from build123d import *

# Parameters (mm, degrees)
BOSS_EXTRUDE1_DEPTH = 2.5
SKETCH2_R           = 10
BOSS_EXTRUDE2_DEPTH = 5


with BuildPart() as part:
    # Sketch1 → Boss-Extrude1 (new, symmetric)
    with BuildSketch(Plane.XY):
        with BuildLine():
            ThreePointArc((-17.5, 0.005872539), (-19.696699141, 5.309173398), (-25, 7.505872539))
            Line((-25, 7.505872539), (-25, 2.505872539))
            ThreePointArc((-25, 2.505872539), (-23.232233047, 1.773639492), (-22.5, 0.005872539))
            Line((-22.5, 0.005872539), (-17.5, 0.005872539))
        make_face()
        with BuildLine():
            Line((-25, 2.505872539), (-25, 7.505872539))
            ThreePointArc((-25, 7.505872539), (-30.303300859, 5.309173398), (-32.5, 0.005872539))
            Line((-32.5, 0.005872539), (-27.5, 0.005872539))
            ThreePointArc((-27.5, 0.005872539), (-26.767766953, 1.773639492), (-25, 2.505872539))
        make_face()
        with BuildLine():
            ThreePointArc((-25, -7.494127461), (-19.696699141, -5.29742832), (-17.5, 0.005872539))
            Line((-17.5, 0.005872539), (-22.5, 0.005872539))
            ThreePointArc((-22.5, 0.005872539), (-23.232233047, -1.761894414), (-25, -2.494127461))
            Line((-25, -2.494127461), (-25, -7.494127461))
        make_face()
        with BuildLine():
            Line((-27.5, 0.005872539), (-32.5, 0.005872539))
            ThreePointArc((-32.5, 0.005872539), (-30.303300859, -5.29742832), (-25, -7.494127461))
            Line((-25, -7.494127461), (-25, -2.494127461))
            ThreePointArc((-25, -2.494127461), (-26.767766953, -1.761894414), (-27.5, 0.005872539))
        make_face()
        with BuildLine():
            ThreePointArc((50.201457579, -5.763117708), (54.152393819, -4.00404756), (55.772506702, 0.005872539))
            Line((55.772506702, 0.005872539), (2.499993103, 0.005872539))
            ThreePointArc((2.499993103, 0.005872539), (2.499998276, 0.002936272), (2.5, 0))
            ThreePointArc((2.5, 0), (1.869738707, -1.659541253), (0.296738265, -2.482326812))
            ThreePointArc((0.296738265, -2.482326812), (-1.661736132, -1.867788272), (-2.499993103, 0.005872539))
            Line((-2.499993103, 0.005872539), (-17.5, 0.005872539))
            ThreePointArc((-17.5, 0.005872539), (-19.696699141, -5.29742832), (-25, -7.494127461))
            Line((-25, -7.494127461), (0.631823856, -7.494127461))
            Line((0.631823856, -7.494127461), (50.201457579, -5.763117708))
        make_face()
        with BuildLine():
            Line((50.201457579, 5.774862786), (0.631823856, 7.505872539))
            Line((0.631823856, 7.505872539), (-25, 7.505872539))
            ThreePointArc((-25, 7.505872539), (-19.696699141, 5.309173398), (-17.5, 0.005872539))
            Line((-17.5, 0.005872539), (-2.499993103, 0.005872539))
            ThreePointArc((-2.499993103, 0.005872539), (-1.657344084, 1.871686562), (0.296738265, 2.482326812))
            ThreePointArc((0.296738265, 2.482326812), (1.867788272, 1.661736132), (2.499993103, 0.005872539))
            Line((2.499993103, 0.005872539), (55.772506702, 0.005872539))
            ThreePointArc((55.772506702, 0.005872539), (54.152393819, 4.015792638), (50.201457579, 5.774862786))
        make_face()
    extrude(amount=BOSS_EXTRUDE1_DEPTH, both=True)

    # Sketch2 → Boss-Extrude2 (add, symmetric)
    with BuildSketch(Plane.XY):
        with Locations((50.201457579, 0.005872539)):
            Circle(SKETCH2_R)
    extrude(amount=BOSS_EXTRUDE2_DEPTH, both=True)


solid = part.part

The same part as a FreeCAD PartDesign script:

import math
import FreeCAD as App
import Part
import Sketcher
from FreeCAD import Vector
Q = App.Units.Quantity

doc = App.newDocument("Part")
body = doc.addObject("PartDesign::Body", "Body")

# Sketch on XY plane
sketch1 = body.newObject("Sketcher::SketchObject", "Sketch")
sketch1.AttachmentSupport = (doc.getObject("XY_Plane"), [""])
sketch1.MapMode = "FlatFace"
sketch1.addGeometry(Part.ArcOfCircle(Part.Circle(Vector(-25, 0.005873, 0), Vector(0, 0, 1), 7.5), math.radians(90), math.radians(180)), False)
sketch1.addGeometry(Part.ArcOfCircle(Part.Circle(Vector(-25, 0.005873, 0), Vector(0, 0, 1), 7.5), math.radians(180), math.radians(270)), False)
sketch1.addGeometry(Part.LineSegment(Vector(-25, -7.494127, 0), Vector(0.631824, -7.494127, 0)), False)
sketch1.addGeometry(Part.LineSegment(Vector(0.631824, -7.494127, 0), Vector(50.201458, -5.763118, 0)), False)
sketch1.addGeometry(Part.ArcOfCircle(Part.Circle(Vector(50, 0.005873, 0), Vector(0, 0, 1), 5.772507), math.radians(-88), math.radians(0)), False)
sketch1.addGeometry(Part.ArcOfCircle(Part.Circle(Vector(50, 0.005873, 0), Vector(0, 0, 1), 5.772507), math.radians(0), math.radians(88)), False)
sketch1.addGeometry(Part.LineSegment(Vector(50.201458, 5.774863, 0), Vector(0.631824, 7.505873, 0)), False)
sketch1.addGeometry(Part.LineSegment(Vector(0.631824, 7.505873, 0), Vector(-25, 7.505873, 0)), False)
sketch1.addGeometry(Part.ArcOfCircle(Part.Circle(Vector(0.000236, 0, 0), Vector(0, 0, 1), 2.499764), math.radians(-0.00001), math.radians(0.134592)), False)
sketch1.addGeometry(Part.ArcOfCircle(Part.Circle(Vector(0, 0, 0), Vector(0, 0, 1), 2.5), math.radians(-83.183189), math.radians(0)), False)
sketch1.addGeometry(Part.ArcOfCircle(Part.Circle(Vector(0, 0, 0), Vector(0, 0, 1), 2.5), math.radians(179.865411), math.radians(276.816811)), False)
sketch1.addGeometry(Part.ArcOfCircle(Part.Circle(Vector(0, 0, 0), Vector(0, 0, 1), 2.5), math.radians(83.183189), math.radians(179.865411)), False)
sketch1.addGeometry(Part.ArcOfCircle(Part.Circle(Vector(0, 0, 0), Vector(0, 0, 1), 2.5), math.radians(0.134589), math.radians(83.183189)), False)
sketch1.addGeometry(Part.ArcOfCircle(Part.Circle(Vector(-25, 0.005873, 0), Vector(0, 0, 1), 2.5), math.radians(-90), math.radians(0)), False)
sketch1.addGeometry(Part.ArcOfCircle(Part.Circle(Vector(-25, 0.005873, 0), Vector(0, 0, 1), 2.5), math.radians(180), math.radians(270)), False)
sketch1.addGeometry(Part.ArcOfCircle(Part.Circle(Vector(-25, 0.005873, 0), Vector(0, 0, 1), 2.5), math.radians(90), math.radians(180)), False)
sketch1.addGeometry(Part.ArcOfCircle(Part.Circle(Vector(-25, 0.005873, 0), Vector(0, 0, 1), 2.5), math.radians(0), math.radians(90)), False)
sketch1.addConstraint(Sketcher.Constraint("Tangent", 0, 2, 1, 1))
sketch1.addConstraint(Sketcher.Constraint("Tangent", 1, 2, 2, 1))
sketch1.addConstraint(Sketcher.Constraint("Coincident", 2, 2, 3, 1))
sketch1.addConstraint(Sketcher.Constraint("Tangent", 3, 2, 4, 1))
sketch1.addConstraint(Sketcher.Constraint("Tangent", 4, 2, 5, 1))
sketch1.addConstraint(Sketcher.Constraint("Tangent", 5, 2, 6, 1))
sketch1.addConstraint(Sketcher.Constraint("Coincident", 6, 2, 7, 1))
sketch1.addConstraint(Sketcher.Constraint("Tangent", 7, 2, 0, 1))
sketch1.addConstraint(Sketcher.Constraint("Tangent", 8, 1, 9, 2))
sketch1.addConstraint(Sketcher.Constraint("Tangent", 9, 1, 10, 2))
sketch1.addConstraint(Sketcher.Constraint("Tangent", 10, 1, 11, 2))
sketch1.addConstraint(Sketcher.Constraint("Tangent", 11, 1, 12, 2))
sketch1.addConstraint(Sketcher.Constraint("Tangent", 12, 1, 8, 2))
sketch1.addConstraint(Sketcher.Constraint("Tangent", 13, 1, 14, 2))
sketch1.addConstraint(Sketcher.Constraint("Tangent", 14, 1, 15, 2))
sketch1.addConstraint(Sketcher.Constraint("Tangent", 15, 1, 16, 2))
sketch1.addConstraint(Sketcher.Constraint("Tangent", 16, 1, 13, 2))
sketch1.addConstraint(Sketcher.Constraint("Horizontal", 2))
sketch1.addConstraint(Sketcher.Constraint("Horizontal", 7))
sketch1.addConstraint(Sketcher.Constraint("Coincident", 9, 3, -1, 1))
sketch1.addConstraint(Sketcher.Constraint("Coincident", 13, 3, 0, 3))
sketch1.addConstraint(Sketcher.Constraint("Equal", 0, 1))
sketch1.addConstraint(Sketcher.Constraint("Equal", 4, 5))
sketch1.addConstraint(Sketcher.Constraint("Equal", 9, 10))
sketch1.addConstraint(Sketcher.Constraint("Equal", 12, 13))
sketch1.addConstraint(Sketcher.Constraint("Equal", 13, 14))
sketch1.addConstraint(Sketcher.Constraint("PointOnObject", 8, 1, -1))
sketch1.addConstraint(Sketcher.Constraint("Horizontal", 1, 3, 4, 3))
sketch1.addConstraint(Sketcher.Constraint("Horizontal", 16, 3, 0, 2))
sketch1.addConstraint(Sketcher.Constraint("Horizontal", 0, 2, 4, 2))
sketch1.addConstraint(Sketcher.Constraint("Horizontal", 4, 2, 10, 1))
sketch1.addConstraint(Sketcher.Constraint("Horizontal", 10, 1, 12, 1))
sketch1.addConstraint(Sketcher.Constraint("Horizontal", 12, 1, 14, 1))
sketch1.addConstraint(Sketcher.Constraint("Horizontal", 14, 1, 16, 1))
sketch1.addConstraint(Sketcher.Constraint("Vertical", 2, 2, 6, 2))
sketch1.addConstraint(Sketcher.Constraint("Vertical", 9, 1, 11, 1))
sketch1.addConstraint(Sketcher.Constraint("Vertical", 7, 2, 13, 1))
sketch1.addConstraint(Sketcher.Constraint("Vertical", 13, 1, 15, 1))
sketch1.addConstraint(Sketcher.Constraint("Radius", 0, 7.5))
sketch1.addConstraint(Sketcher.Constraint("Radius", 9, 2.5))
sketch1.addConstraint(Sketcher.Constraint("Angle", 3, Q("2 deg")))
sketch1.addConstraint(Sketcher.Constraint("DistanceX", 0, 3, -1, 1, 25.0))
sketch1.addConstraint(Sketcher.Constraint("DistanceX", -1, 1, 4, 3, 50.0))
sketch1.addConstraint(Sketcher.Constraint("Radius", 4, 5.772507))
sketch1.addConstraint(Sketcher.Constraint("Radius", 8, 2.499764))
sketch1.addConstraint(Sketcher.Constraint("DistanceX", 8, 3, 9, 1, 0.296502))
sketch1.addConstraint(Sketcher.Constraint("DistanceY", 3, 2, 8, 3, 5.763118))
pad1 = body.newObject("PartDesign::Pad", "Pad")
pad1.Profile = sketch1
pad1.Length = 5
pad1.Midplane = True

# Sketch on XY plane
sketch2 = body.newObject("Sketcher::SketchObject", "Sketch001")
sketch2.AttachmentSupport = (doc.getObject("XY_Plane"), [""])
sketch2.MapMode = "FlatFace"
sketch2.addGeometry(Part.Circle(Vector(50.201458, 0.005873, 0), Vector(0, 0, 1), 10), False)
sketch2.addConstraint(Sketcher.Constraint("Diameter", 0, 20.0))
sketch2.addConstraint(Sketcher.Constraint("DistanceX", -1, 1, 0, 3, 50.201458))
sketch2.addConstraint(Sketcher.Constraint("DistanceY", -1, 1, 0, 3, 0.005873))
pad2 = body.newObject("PartDesign::Pad", "Pad001")
pad2.Profile = sketch2
pad2.Length = 10
pad2.Midplane = True

doc.recompute()
